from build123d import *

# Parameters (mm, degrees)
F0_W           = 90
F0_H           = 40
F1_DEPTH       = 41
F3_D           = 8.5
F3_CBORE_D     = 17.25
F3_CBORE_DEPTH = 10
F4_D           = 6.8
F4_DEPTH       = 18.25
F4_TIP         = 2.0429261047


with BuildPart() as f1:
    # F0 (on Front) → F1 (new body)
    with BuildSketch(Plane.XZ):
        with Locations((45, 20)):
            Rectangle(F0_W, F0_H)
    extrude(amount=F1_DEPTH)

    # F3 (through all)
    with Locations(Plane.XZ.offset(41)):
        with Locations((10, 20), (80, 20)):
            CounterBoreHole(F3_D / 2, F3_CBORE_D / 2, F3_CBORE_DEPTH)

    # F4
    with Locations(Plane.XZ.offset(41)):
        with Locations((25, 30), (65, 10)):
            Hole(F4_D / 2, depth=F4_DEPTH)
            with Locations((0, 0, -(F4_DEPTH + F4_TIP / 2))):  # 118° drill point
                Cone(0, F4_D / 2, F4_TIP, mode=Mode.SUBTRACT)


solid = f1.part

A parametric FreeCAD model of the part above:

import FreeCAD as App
import Part
import Sketcher

V = App.Vector
Q = App.Units.Quantity


def add_polygon(sketch, points):
    """Adds a closed chain of lines whose ends are joined by coincident constraints."""
    first, n = sketch.GeometryCount, len(points)
    for a, b in zip(points, points[1:] + points[:1]):
        sketch.addGeometry(Part.LineSegment(App.Vector(*a, 0), App.Vector(*b, 0)), False)
    for i in range(n):
        sketch.addConstraint(Sketcher.Constraint("Coincident", first + i, 2, first + (i + 1) % n, 1))

doc = App.newDocument("Part")
body = doc.addObject("PartDesign::Body", "Body")

# Sketch on XZ plane
sketch1 = body.newObject("Sketcher::SketchObject", "Sketch")
sketch1.AttachmentSupport = (doc.getObject("XZ_Plane"), [""])
sketch1.MapMode = "FlatFace"
add_polygon(sketch1, [(0, 40), (0, 0), (90, 0), (90, 40)])  # lines 0-3
sketch1.addConstraint([
    Sketcher.Constraint("Vertical", 0),
    Sketcher.Constraint("Horizontal", 1),
    Sketcher.Constraint("Vertical", 2),
    Sketcher.Constraint("Horizontal", 3),
    Sketcher.Constraint("Coincident", 0, 2, -1, 1),
    Sketcher.Constraint("DistanceX", 1, 1, 1, 2, Q("90 mm")),
    Sketcher.Constraint("DistanceY", 0, 2, 0, 1, Q("40 mm")),
])
pad1 = body.newObject("PartDesign::Pad", "Pad")
pad1.Profile = sketch1
pad1.Length = 41

# Sketch on XZ plane
sketch2 = body.newObject("Sketcher::SketchObject", "Sketch001")
sketch2.AttachmentSupport = (doc.getObject("XZ_Plane"), [""])
sketch2.MapMode = "FlatFace"
sketch2.AttachmentOffset = App.Placement(V(0, 0, 41), App.Rotation())
sketch2.addGeometry([
    Part.Circle(V(10, 20, 0), V(0, 0, 1), 4.25),
    Part.Circle(V(80, 20, 0), V(0, 0, 1), 4.25),
], False)
sketch2.addConstraint([
    Sketcher.Constraint("Equal", 0, 1),
    Sketcher.Constraint("Horizontal", 0, 3, 1, 3),
    Sketcher.Constraint("Diameter", 0, Q("8.5 mm")),
    Sketcher.Constraint("DistanceX", -1, 1, 0, 3, Q("10 mm")),
    Sketcher.Constraint("DistanceY", -1, 1, 0, 3, Q("20 mm")),
    Sketcher.Constraint("DistanceX", -1, 1, 1, 3, Q("80 mm")),
])
doc.recompute()
hole = body.newObject("PartDesign::Hole", "Hole")
hole.Profile = sketch2
hole.ThreadType = "None"
hole.Diameter = 8.5
hole.DepthType = "ThroughAll"
hole.HoleCutType = "Counterbore"
hole.HoleCutDiameter = 17.25
hole.HoleCutDepth = 10

# Sketch on XZ plane
sketch3 = body.newObject("Sketcher::SketchObject", "Sketch002")
sketch3.AttachmentSupport = (doc.getObject("XZ_Plane"), [""])
sketch3.MapMode = "FlatFace"
sketch3.AttachmentOffset = App.Placement(V(0, 0, 41), App.Rotation())
sketch3.addGeometry([
    Part.Circle(V(25, 30, 0), V(0, 0, 1), 3.4),
    Part.Circle(V(65, 10, 0), V(0, 0, 1), 3.4),
], False)
sketch3.addConstraint([
    Sketcher.Constraint("Equal", 0, 1),
    Sketcher.Constraint("Diameter", 0, Q("6.8 mm")),
    Sketcher.Constraint("DistanceX", -1, 1, 0, 3, Q("25 mm")),
    Sketcher.Constraint("DistanceY", -1, 1, 0, 3, Q("30 mm")),
    Sketcher.Constraint("DistanceX", -1, 1, 1, 3, Q("65 mm")),
    Sketcher.Constraint("DistanceY", -1, 1, 1, 3, Q("10 mm")),
])
doc.recompute()
hole2 = body.newObject("PartDesign::Hole", "Hole001")
hole2.Profile = sketch3
hole2.ThreadType = "None"
hole2.Diameter = 6.8
hole2.DepthType = "Dimension"
hole2.Depth = 18.25
hole2.DrillPoint = "Angled"
hole2.DrillPointAngle = 118

doc.recompute()
